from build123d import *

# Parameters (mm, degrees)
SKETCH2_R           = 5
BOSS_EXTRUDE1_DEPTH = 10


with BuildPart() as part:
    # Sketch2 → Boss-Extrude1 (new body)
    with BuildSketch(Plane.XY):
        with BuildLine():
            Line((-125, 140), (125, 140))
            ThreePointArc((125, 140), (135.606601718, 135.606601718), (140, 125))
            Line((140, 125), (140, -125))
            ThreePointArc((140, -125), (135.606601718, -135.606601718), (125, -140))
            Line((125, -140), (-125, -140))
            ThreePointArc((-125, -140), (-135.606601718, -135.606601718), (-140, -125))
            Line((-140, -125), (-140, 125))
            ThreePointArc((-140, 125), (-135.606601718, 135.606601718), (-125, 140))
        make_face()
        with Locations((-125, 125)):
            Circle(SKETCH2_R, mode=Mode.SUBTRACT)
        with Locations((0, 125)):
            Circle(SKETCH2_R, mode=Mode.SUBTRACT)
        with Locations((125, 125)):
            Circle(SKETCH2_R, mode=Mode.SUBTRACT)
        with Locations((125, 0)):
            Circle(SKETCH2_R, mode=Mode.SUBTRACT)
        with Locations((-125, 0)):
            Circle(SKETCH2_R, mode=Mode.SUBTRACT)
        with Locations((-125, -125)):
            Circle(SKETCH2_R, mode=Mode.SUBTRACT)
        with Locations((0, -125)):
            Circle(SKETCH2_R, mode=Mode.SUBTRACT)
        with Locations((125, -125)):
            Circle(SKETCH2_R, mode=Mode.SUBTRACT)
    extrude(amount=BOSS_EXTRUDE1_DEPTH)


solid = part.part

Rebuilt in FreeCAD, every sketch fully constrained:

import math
import FreeCAD as App
import Part
import Sketcher

V = App.Vector

doc = App.newDocument("Part")
params = doc.addObject("Spreadsheet::Sheet", "Params")
for row, (alias, value) in enumerate([
    ("sketch1_diameter", "10 mm"),
    ("sketch1_radius", "15 mm"),
    ("sketch1_width", "250 mm"),
    ("pad1_length", "10 mm"),
], start=1):
    params.set(f"A{row}", alias)
    params.set(f"B{row}", "=" + value)
    params.setAlias(f"B{row}", alias)

body = doc.addObject("PartDesign::Body", "Body")

# Sketch on XY plane
sketch1 = body.newObject("Sketcher::SketchObject", "Sketch")
sketch1.AttachmentSupport = (doc.getObject("XY_Plane"), [""])
sketch1.MapMode = "FlatFace"
sketch1.addGeometry([
    Part.LineSegment(V(125, 140, 0), V(-125, 140, 0)),  # 0
    Part.ArcOfCircle(Part.Circle(V(-125, 125, 0), V(0, 0, 1), 15), math.radians(90), math.radians(180)),  # 1
    Part.LineSegment(V(-140, 125, 0), V(-140, -125, 0)),  # 2
    Part.ArcOfCircle(Part.Circle(V(-125, -125, 0), V(0, 0, 1), 15), math.radians(180), math.radians(270)),  # 3
    Part.LineSegment(V(-125, -140, 0), V(125, -140, 0)),  # 4
    Part.ArcOfCircle(Part.Circle(V(125, -125, 0), V(0, 0, 1), 15), math.radians(-90), math.radians(0)),  # 5
    Part.LineSegment(V(140, -125, 0), V(140, 125, 0)),  # 6
    Part.ArcOfCircle(Part.Circle(V(125, 125, 0), V(0, 0, 1), 15), math.radians(0), math.radians(90)),  # 7
    Part.Circle(V(125, -125, 0), V(0, 0, 1), 5),  # 8
    Part.Circle(V(0, -125, 0), V(0, 0, 1), 5),  # 9
    Part.Circle(V(-125, -125, 0), V(0, 0, 1), 5),  # 10
    Part.Circle(V(125, 0, 0), V(0, 0, 1), 5),  # 11
    Part.Circle(V(125, 125, 0), V(0, 0, 1), 5),  # 12
    Part.Circle(V(-125, 0, 0), V(0, 0, 1), 5),  # 13
    Part.Circle(V(0, 125, 0), V(0, 0, 1), 5),  # 14
    Part.Circle(V(-125, 125, 0), V(0, 0, 1), 5),  # 15
], False)
sketch1.addConstraint([
    Sketcher.Constraint("Tangent", 0, 2, 1, 1),
    Sketcher.Constraint("Tangent", 1, 2, 2, 1),
    Sketcher.Constraint("Tangent", 2, 2, 3, 1),
    Sketcher.Constraint("Tangent", 3, 2, 4, 1),
    Sketcher.Constraint("Tangent", 4, 2, 5, 1),
    Sketcher.Constraint("Tangent", 5, 2, 6, 1),
    Sketcher.Constraint("Tangent", 6, 2, 7, 1),
    Sketcher.Constraint("Tangent", 7, 2, 0, 1),
    Sketcher.Constraint("Horizontal", 0),
    Sketcher.Constraint("Vertical", 2),
    Sketcher.Constraint("Horizontal", 4),
    Sketcher.Constraint("Vertical", 6),
    Sketcher.Constraint("Coincident", 8, 3, 5, 3),
    Sketcher.Constraint("Coincident", 10, 3, 3, 3),
    Sketcher.Constraint("Coincident", 12, 3, 7, 3),
    Sketcher.Constraint("Coincident", 15, 3, 1, 3),
    Sketcher.Constraint("Equal", 1, 3),
    Sketcher.Constraint("Equal", 3, 5),
    Sketcher.Constraint("Equal", 5, 7),
    Sketcher.Constraint("Equal", 8, 9),
    Sketcher.Constraint("Equal", 9, 10),
    Sketcher.Constraint("Equal", 10, 11),
    Sketcher.Constraint("Equal", 11, 12),
    Sketcher.Constraint("Equal", 12, 13),
    Sketcher.Constraint("Equal", 13, 14),
    Sketcher.Constraint("Equal", 14, 15),
    Sketcher.Constraint("Symmetric", 1, 3, 5, 3, -1, 1),
    Sketcher.Constraint("Symmetric", 11, 3, 13, 3, -1, 1),
    Sketcher.Constraint("Symmetric", 9, 3, 14, 3, -1, 1),
    Sketcher.Constraint("PointOnObject", 9, 3, -2),
    Sketcher.Constraint("PointOnObject", 11, 3, -1),
    Sketcher.Constraint("Horizontal", 8, 3, 9, 3),
    Sketcher.Constraint("Vertical", 8, 3, 11, 3),
    Sketcher.Constraint("Equal", 4, 2),
    Sketcher.Constraint("Diameter", 8, 10.0),
    Sketcher.Constraint("Radius", 1, 15.0),
    Sketcher.Constraint("DistanceX", 0, 2, 0, 1, 250.0),
])
sketch1.setExpression("Constraints[34]", "Params.sketch1_diameter")
sketch1.setExpression("Constraints[35]", "Params.sketch1_radius")
sketch1.setExpression("Constraints[36]", "Params.sketch1_width")
pad1 = body.newObject("PartDesign::Pad", "Pad")
pad1.Profile = sketch1
pad1.setExpression("Length", "Params.pad1_length")

doc.recompute()
